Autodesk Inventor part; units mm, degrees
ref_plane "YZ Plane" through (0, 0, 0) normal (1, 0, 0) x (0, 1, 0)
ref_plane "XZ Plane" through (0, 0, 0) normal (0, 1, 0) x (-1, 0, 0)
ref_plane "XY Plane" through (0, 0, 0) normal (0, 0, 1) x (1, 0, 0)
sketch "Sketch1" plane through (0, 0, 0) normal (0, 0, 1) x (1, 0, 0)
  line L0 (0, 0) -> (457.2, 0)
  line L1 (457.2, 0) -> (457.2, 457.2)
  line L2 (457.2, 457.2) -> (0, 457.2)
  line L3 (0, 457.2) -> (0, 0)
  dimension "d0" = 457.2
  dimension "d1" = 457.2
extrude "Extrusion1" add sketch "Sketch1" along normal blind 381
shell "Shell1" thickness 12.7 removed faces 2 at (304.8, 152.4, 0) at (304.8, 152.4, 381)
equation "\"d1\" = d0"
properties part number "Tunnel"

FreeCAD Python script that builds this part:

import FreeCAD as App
import Part
import Sketcher

V = App.Vector
Q = App.Units.Quantity


def faces_at(feature, points):
    """Names of the faces that lie closest to the given points."""
    faces = feature.Shape.Faces
    near = lambda p: min(range(len(faces)), key=lambda i: faces[i].distToShape(Part.Vertex(*p))[0])
    return sorted({f"Face{near(p) + 1}" for p in points})


def add_polygon(sketch, points):
    """Adds a closed chain of lines whose ends are joined by coincident constraints."""
    first, n = sketch.GeometryCount, len(points)
    for a, b in zip(points, points[1:] + points[:1]):
        sketch.addGeometry(Part.LineSegment(App.Vector(*a, 0), App.Vector(*b, 0)), False)
    for i in range(n):
        sketch.addConstraint(Sketcher.Constraint("Coincident", first + i, 2, first + (i + 1) % n, 1))

doc = App.newDocument("Part")
params = doc.addObject("Spreadsheet::Sheet", "Params")
for row, (alias, value) in enumerate([
    ("sketch1_width", "18 in"),
    ("pad1_length", "15 in"),
    ("thickness_wall", "0.5 in"),
], start=1):
    params.set(f"A{row}", alias)
    params.set(f"B{row}", "=" + value)
    params.setAlias(f"B{row}", alias)

body = doc.addObject("PartDesign::Body", "Body")

sketch1 = body.newObject("Sketcher::SketchObject", "Sketch")
sketch1.AttachmentSupport = (doc.getObject("XY_Plane"), [""])
sketch1.MapMode = "FlatFace"
add_polygon(sketch1, [(0, 457.2), (0, 0), (457.2, 0), (457.2, 457.2)])
sketch1.addConstraint(Sketcher.Constraint("Vertical", 0))
sketch1.addConstraint(Sketcher.Constraint("Horizontal", 1))
sketch1.addConstraint(Sketcher.Constraint("Vertical", 2))
sketch1.addConstraint(Sketcher.Constraint("Horizontal", 3))
sketch1.addConstraint(Sketcher.Constraint("Coincident", 0, 2, -1, 1))
sketch1.addConstraint(Sketcher.Constraint("Equal", 3, 0))
sketch1.addConstraint(Sketcher.Constraint("DistanceX", 1, 1, 1, 2, Q("18 in")))
sketch1.setExpression("Constraints[10]", "Params.sketch1_width")
pad1 = body.newObject("PartDesign::Pad", "Pad")
pad1.Profile = sketch1
pad1.setExpression("Length", "Params.pad1_length")
doc.recompute()

thickness = body.newObject("PartDesign::Thickness", "Thickness")
thickness.Base = (pad1, faces_at(pad1, [(304.8, 152.4, 0), (304.8, 152.4, 381)]))
thickness.setExpression("Value", "Params.thickness_wall")
thickness.Reversed = True
thickness.Join = "Intersection"

doc.recompute()
